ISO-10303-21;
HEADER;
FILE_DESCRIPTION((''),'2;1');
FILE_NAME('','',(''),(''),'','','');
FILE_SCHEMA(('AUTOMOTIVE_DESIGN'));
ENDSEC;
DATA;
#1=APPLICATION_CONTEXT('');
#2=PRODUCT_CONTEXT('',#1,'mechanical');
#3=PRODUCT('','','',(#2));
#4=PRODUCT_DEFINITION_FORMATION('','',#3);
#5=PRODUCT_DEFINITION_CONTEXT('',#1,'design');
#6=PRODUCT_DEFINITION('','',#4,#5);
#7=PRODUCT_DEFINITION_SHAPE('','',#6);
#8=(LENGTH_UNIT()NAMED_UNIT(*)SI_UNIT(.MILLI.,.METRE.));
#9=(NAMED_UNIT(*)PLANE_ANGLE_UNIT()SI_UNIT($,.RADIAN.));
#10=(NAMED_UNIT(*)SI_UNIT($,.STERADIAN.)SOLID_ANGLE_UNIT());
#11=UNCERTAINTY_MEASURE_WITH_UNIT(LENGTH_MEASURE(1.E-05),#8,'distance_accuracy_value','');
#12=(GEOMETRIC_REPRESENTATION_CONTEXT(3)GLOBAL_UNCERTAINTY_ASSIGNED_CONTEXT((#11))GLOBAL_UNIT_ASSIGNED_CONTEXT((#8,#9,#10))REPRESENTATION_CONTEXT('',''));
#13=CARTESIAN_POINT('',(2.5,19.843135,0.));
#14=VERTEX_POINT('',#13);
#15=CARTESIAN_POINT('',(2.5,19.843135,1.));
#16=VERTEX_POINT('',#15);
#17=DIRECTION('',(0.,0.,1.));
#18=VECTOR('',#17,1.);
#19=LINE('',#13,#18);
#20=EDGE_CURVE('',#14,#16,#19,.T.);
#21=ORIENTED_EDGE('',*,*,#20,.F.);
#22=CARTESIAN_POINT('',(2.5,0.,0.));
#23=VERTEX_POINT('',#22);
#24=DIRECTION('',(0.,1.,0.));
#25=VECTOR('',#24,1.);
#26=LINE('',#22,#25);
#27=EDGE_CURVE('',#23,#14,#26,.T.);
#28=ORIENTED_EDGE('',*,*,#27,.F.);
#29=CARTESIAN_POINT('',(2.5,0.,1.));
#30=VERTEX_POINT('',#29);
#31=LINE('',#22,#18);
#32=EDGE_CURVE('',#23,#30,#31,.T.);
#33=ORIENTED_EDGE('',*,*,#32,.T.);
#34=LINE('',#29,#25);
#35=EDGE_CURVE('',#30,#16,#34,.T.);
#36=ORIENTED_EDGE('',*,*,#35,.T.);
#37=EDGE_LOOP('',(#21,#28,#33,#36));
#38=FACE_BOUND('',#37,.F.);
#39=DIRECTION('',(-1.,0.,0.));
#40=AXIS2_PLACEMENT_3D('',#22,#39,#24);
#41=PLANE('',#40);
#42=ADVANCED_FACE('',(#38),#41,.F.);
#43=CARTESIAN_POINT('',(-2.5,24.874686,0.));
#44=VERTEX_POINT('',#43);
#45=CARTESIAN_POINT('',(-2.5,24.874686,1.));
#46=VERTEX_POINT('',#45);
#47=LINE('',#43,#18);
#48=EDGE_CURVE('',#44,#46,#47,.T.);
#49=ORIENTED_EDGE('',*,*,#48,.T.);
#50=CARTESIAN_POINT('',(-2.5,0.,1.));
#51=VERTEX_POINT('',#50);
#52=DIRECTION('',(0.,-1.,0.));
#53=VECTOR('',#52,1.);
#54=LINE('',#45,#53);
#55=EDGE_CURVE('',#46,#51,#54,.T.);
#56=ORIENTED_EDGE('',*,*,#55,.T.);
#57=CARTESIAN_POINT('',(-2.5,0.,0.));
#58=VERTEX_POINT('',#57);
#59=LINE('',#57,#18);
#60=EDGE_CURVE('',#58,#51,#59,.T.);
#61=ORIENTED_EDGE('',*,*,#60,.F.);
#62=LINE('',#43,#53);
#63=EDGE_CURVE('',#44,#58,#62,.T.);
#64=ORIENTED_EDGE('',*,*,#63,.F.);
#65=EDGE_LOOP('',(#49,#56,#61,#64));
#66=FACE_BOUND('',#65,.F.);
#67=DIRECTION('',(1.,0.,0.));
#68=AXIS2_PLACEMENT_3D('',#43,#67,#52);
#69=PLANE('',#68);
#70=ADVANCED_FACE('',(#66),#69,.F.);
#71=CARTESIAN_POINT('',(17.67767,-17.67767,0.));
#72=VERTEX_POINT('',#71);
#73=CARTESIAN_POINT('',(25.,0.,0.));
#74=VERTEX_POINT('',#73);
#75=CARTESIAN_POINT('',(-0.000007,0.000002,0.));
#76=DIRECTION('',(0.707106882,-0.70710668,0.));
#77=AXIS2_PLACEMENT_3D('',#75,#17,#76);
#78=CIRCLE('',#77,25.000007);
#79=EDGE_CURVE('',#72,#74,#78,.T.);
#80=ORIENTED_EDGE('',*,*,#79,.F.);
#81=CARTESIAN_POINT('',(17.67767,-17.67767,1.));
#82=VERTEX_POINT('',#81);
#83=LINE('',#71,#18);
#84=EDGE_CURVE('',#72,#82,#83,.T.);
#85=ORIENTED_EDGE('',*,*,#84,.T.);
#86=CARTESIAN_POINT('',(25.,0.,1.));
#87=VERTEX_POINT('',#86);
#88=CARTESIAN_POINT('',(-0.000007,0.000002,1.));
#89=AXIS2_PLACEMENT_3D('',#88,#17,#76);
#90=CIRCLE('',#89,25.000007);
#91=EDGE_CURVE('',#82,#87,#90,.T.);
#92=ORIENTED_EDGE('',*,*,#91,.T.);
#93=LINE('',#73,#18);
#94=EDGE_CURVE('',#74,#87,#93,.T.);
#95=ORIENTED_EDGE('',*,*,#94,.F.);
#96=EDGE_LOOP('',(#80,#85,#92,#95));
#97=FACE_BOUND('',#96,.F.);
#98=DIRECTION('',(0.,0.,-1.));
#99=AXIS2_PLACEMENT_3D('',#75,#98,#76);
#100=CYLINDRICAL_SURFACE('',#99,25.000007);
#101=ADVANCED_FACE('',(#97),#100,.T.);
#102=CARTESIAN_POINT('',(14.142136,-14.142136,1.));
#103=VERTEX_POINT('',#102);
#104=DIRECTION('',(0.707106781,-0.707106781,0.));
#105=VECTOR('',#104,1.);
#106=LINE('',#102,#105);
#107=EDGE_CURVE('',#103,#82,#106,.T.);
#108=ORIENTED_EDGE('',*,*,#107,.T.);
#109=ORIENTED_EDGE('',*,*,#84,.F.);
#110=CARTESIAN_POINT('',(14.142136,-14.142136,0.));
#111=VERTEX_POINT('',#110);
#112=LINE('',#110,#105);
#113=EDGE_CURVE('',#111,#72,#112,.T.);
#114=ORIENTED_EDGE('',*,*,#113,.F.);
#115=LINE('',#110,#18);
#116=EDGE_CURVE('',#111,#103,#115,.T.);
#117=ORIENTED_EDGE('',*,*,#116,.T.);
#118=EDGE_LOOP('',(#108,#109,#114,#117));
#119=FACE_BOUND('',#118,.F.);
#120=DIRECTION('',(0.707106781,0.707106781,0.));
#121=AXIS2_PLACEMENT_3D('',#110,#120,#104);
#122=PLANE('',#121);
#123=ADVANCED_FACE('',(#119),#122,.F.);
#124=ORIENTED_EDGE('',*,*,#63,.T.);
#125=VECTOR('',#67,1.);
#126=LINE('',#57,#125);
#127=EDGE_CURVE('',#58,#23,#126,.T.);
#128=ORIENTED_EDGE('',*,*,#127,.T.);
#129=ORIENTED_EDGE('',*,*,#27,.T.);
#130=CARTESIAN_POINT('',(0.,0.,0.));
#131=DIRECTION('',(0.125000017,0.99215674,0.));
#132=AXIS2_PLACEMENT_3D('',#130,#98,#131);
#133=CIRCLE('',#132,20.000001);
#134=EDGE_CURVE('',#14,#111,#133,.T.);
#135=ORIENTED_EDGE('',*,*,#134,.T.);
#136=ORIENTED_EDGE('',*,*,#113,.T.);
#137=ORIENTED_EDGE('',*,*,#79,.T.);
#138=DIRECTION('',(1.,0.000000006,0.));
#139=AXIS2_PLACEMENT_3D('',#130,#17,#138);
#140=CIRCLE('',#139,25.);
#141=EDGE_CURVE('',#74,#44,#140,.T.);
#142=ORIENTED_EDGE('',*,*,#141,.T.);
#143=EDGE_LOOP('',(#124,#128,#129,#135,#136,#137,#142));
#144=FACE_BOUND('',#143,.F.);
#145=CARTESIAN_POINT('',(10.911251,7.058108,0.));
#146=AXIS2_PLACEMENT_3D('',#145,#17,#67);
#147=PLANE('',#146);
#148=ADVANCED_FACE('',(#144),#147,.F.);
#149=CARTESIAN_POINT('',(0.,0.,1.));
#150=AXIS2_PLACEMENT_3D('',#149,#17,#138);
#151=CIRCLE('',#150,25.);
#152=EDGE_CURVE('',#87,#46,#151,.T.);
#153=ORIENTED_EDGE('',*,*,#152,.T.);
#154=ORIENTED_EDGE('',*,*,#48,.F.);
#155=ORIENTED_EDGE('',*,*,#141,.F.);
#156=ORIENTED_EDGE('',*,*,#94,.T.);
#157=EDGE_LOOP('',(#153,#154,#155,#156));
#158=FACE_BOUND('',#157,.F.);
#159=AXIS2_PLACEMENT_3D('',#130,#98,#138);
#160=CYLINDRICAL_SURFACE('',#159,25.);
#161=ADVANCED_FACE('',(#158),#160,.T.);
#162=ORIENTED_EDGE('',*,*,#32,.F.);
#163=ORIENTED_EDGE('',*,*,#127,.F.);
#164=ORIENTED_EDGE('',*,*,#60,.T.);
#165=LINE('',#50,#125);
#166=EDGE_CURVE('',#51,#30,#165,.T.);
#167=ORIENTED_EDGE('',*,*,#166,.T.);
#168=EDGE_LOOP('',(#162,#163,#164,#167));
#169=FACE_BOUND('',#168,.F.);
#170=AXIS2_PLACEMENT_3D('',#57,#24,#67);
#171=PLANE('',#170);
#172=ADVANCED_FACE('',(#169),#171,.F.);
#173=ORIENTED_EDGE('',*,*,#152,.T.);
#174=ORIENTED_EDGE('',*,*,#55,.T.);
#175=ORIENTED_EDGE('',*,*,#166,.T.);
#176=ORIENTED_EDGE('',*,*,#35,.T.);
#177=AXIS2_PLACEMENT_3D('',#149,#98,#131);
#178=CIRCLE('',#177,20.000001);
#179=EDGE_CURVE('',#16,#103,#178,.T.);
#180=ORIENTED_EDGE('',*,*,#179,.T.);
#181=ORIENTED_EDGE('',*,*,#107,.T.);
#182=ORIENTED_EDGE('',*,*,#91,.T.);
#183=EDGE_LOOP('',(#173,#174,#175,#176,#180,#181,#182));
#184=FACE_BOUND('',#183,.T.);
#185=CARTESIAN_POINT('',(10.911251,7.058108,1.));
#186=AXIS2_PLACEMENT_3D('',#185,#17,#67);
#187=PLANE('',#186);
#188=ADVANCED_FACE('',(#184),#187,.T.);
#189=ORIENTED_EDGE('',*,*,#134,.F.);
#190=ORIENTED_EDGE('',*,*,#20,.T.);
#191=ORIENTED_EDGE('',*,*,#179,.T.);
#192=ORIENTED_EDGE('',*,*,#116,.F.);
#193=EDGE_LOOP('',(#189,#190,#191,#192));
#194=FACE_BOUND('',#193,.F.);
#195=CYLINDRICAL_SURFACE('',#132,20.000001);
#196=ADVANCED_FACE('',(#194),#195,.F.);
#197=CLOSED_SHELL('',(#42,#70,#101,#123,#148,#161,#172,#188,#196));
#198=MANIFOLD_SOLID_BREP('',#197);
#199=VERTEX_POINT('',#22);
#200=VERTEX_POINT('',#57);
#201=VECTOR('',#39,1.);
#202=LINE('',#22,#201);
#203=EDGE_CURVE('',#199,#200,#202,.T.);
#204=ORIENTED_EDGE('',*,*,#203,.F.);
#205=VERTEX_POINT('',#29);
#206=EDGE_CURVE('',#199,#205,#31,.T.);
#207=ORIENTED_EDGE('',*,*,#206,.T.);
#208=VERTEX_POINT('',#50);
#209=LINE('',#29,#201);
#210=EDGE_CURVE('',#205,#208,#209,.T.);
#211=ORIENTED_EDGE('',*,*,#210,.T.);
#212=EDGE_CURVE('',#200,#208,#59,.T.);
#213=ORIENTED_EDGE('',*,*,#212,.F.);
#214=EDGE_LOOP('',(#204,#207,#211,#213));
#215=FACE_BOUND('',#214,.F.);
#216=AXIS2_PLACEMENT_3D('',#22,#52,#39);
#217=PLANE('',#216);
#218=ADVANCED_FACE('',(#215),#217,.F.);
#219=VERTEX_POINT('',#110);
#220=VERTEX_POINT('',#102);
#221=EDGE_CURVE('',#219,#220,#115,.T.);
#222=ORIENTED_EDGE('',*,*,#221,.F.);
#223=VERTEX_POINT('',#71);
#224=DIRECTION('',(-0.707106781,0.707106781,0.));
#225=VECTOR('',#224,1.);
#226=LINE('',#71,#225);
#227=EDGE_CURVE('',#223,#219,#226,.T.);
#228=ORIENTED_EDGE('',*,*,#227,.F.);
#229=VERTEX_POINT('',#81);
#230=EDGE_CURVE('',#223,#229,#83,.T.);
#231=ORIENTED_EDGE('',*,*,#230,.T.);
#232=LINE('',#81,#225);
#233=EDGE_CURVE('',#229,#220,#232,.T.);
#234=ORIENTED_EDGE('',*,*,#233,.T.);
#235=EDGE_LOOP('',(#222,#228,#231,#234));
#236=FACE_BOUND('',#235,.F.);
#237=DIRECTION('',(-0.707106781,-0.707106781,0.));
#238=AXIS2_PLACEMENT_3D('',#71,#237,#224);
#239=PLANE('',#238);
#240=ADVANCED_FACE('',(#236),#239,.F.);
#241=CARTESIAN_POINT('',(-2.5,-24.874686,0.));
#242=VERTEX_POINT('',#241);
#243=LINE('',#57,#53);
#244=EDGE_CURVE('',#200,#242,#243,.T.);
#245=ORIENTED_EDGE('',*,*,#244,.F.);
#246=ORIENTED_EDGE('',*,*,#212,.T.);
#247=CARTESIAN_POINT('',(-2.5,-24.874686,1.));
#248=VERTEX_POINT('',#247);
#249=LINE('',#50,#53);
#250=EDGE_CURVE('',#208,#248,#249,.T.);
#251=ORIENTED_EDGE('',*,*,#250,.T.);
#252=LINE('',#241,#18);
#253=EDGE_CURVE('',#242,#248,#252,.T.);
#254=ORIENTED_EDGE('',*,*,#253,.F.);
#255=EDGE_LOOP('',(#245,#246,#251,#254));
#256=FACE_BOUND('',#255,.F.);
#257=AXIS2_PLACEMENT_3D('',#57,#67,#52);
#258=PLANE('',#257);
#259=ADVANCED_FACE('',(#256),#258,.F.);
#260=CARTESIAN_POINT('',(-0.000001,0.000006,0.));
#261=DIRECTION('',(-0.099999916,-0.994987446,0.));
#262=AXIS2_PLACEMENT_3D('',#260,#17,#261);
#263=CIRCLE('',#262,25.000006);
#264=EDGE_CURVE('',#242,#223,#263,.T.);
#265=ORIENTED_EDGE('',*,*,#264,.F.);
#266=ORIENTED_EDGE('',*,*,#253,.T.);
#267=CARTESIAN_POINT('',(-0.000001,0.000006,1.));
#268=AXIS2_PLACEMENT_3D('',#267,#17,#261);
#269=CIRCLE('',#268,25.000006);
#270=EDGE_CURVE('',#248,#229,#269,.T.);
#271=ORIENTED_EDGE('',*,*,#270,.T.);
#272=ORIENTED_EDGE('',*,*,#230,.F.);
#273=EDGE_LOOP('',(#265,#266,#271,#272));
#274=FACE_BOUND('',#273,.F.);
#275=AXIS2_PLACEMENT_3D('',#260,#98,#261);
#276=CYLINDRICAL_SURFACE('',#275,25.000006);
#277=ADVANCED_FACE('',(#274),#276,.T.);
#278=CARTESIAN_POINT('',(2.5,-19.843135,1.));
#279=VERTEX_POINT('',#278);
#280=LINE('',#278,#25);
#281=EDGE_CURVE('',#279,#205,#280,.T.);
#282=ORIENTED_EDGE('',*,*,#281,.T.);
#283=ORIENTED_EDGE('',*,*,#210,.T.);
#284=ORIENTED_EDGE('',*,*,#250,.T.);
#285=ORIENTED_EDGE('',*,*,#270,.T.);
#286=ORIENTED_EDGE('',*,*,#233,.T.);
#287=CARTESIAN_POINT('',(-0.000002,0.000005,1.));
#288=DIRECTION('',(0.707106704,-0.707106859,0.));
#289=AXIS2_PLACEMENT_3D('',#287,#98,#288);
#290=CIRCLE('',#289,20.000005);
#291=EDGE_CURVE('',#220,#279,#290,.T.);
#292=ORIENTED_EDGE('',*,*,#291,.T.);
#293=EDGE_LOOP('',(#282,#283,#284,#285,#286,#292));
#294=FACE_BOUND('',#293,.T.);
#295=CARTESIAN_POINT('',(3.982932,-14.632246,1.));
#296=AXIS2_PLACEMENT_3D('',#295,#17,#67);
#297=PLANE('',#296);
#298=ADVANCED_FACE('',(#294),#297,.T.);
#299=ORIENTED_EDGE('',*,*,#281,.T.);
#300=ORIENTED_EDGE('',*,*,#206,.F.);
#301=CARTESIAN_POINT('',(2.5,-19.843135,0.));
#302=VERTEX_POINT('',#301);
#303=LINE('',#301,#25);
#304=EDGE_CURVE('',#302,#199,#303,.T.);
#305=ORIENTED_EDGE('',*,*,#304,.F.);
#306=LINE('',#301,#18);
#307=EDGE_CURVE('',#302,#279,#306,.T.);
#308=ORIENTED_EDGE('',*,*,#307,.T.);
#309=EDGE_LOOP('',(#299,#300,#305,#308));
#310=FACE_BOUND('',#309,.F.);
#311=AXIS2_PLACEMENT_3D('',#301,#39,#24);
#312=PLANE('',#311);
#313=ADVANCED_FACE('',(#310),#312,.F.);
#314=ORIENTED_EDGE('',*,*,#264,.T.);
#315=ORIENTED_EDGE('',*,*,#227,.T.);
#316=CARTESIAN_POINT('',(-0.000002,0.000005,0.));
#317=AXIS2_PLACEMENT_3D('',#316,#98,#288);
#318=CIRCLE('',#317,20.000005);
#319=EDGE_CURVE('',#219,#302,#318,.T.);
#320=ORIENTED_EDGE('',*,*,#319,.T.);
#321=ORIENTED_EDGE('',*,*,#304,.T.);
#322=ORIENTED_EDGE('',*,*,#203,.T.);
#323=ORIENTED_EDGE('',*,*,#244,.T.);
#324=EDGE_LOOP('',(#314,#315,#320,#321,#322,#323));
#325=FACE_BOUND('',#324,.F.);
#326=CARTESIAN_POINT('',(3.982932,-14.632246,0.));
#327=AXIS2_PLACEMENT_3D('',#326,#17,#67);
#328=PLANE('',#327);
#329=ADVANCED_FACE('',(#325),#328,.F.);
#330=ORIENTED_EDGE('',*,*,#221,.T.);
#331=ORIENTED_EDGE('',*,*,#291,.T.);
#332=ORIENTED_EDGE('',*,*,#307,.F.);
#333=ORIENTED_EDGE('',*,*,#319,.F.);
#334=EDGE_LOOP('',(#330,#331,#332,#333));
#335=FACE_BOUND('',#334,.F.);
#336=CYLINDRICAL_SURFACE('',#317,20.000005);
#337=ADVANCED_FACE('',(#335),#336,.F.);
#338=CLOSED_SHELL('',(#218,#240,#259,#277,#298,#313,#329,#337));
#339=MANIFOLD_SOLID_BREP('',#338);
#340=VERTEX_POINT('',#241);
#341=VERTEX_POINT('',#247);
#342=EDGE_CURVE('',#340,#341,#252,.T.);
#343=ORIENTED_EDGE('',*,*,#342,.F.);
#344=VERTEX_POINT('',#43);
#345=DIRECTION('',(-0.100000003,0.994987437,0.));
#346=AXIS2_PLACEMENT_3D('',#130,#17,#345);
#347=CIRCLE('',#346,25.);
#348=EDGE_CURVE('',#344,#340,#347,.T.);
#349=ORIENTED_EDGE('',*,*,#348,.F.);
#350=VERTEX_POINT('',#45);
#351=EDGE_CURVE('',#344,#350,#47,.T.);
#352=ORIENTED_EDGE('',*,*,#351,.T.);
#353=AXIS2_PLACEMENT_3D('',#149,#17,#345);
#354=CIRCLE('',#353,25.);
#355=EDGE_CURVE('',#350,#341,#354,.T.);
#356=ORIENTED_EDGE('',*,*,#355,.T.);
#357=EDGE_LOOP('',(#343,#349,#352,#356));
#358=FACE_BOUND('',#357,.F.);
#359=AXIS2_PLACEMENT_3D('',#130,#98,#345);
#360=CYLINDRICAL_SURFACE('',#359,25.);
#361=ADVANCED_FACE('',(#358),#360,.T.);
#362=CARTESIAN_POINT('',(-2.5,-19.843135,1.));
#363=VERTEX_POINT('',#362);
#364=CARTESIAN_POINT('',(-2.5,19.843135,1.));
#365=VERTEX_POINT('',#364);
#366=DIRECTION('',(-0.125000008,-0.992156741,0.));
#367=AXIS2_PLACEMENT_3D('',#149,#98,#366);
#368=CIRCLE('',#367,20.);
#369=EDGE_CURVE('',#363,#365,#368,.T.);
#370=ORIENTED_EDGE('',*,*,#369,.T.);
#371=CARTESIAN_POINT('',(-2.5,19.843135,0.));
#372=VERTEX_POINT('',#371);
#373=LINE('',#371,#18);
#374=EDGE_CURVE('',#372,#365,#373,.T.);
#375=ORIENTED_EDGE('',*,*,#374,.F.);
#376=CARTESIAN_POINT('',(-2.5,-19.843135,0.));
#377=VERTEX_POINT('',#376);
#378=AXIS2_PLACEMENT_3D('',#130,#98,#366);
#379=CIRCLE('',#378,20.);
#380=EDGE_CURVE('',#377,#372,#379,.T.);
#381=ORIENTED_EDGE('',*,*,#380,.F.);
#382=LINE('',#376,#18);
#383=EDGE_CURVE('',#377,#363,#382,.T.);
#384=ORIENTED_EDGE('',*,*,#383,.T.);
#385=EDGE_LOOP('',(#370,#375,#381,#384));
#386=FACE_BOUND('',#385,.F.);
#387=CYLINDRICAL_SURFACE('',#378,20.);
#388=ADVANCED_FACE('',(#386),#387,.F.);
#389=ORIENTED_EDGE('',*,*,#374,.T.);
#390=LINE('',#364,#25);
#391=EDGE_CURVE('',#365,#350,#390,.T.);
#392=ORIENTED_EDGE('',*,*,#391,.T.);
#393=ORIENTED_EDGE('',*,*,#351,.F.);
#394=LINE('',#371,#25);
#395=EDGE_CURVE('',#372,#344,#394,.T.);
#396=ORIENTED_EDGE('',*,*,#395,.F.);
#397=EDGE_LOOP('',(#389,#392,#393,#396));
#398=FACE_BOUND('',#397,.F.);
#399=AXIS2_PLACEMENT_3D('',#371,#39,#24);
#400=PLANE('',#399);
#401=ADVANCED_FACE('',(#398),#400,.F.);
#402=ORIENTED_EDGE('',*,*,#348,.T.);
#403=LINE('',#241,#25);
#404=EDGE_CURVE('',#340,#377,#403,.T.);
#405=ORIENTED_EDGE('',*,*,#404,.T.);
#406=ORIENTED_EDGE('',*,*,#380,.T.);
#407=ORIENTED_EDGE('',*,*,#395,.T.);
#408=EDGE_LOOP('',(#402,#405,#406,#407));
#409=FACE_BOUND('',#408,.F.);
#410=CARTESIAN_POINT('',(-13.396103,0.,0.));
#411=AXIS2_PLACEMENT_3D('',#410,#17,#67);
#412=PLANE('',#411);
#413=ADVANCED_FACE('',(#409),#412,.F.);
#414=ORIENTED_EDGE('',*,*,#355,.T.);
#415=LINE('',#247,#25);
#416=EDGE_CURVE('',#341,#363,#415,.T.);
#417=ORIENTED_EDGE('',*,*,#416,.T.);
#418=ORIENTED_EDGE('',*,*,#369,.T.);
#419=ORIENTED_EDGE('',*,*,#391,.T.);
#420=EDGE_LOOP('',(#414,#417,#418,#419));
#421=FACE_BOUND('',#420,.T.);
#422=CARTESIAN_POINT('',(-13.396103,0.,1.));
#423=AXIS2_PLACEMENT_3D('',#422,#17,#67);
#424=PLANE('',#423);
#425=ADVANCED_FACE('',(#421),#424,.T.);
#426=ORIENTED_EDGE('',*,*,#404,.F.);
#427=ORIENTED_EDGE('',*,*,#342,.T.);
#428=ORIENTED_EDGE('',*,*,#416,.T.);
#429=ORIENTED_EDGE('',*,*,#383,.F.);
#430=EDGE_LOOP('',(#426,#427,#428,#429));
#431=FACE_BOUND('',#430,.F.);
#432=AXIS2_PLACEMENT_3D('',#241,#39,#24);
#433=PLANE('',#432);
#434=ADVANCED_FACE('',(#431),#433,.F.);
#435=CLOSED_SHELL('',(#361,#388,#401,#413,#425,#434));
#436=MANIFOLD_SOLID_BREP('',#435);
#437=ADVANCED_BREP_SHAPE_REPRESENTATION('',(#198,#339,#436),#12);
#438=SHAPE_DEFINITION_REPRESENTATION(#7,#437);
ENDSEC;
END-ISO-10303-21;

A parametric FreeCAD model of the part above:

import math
import FreeCAD as App
import Part
import Sketcher

V = App.Vector
Q = App.Units.Quantity

doc = App.newDocument("Part")
body = doc.addObject("PartDesign::Body", "Body")

# Sketch on XY plane
sketch1 = body.newObject("Sketcher::SketchObject", "Sketch")
sketch1.AttachmentSupport = (doc.getObject("XY_Plane"), [""])
sketch1.MapMode = "FlatFace"
sketch1.addGeometry(Part.LineSegment(V(-2, 20, 0), V(-2, 25, 0)), False)
sketch1.addGeometry(Part.ArcOfCircle(Part.Circle(V(0, 0, 0), V(0, 0, 1), 25), math.radians(96), math.radians(264)), False)
sketch1.addGeometry(Part.LineSegment(V(-2, -25, 0), V(-2, -20, 0)), False)
sketch1.addGeometry(Part.ArcOfCircle(Part.Circle(V(0, 0, 0), V(0, 0, 1), 20), math.radians(97), math.radians(263)), False)
sketch1.addConstraint(Sketcher.Constraint("Coincident", 0, 2, 1, 1))
sketch1.addConstraint(Sketcher.Constraint("Coincident", 1, 2, 2, 1))
sketch1.addConstraint(Sketcher.Constraint("Coincident", 2, 2, 3, 2))
sketch1.addConstraint(Sketcher.Constraint("Coincident", 3, 1, 0, 1))
sketch1.addConstraint(Sketcher.Constraint("Vertical", 0))
sketch1.addConstraint(Sketcher.Constraint("Vertical", 2))
sketch1.addConstraint(Sketcher.Constraint("Coincident", 1, 3, -1, 1))
sketch1.addConstraint(Sketcher.Constraint("Coincident", 3, 3, -1, 1))
sketch1.addConstraint(Sketcher.Constraint("Vertical", 0, 2, 1, 2))
sketch1.addConstraint(Sketcher.Constraint("Radius", 1, 25.0))
sketch1.addConstraint(Sketcher.Constraint("Radius", 3, 20.0))
sketch1.addConstraint(Sketcher.Constraint("DistanceX", 0, 2, -1, 1, 2.5))
pad1 = body.newObject("PartDesign::Pad", "Pad")
pad1.Profile = sketch1
pad1.Length = 1
body2 = doc.addObject("PartDesign::Body", "Body001")

# Sketch on XY plane
sketch2 = body2.newObject("Sketcher::SketchObject", "Sketch001")
sketch2.AttachmentSupport = (doc.getObject("XY_Plane001"), [""])
sketch2.MapMode = "FlatFace"
sketch2.addGeometry(Part.ArcOfCircle(Part.Circle(V(0, 0, 0), V(0, 0, 1), 25), math.radians(-45), math.radians(0)), False)
sketch2.addGeometry(Part.ArcOfCircle(Part.Circle(V(0, 0, 0), V(0, 0, 1), 25), math.radians(0), math.radians(96)), False)
sketch2.addGeometry(Part.LineSegment(V(-2, 25, 0), V(-2, 0, 0)), False)
sketch2.addGeometry(Part.LineSegment(V(-2, 0, 0), V(2, 0, 0)), False)
sketch2.addGeometry(Part.LineSegment(V(2, 0, 0), V(2, 20, 0)), False)
sketch2.addGeometry(Part.ArcOfCircle(Part.Circle(V(0, 0, 0), V(0, 0, 1), 20), math.radians(-45), math.radians(83)), False)
sketch2.addGeometry(Part.LineSegment(V(14, -14, 0), V(18, -18, 0)), False)
sketch2.addConstraint(Sketcher.Constraint("Tangent", 0, 2, 1, 1))
sketch2.addConstraint(Sketcher.Constraint("Coincident", 1, 2, 2, 1))
sketch2.addConstraint(Sketcher.Constraint("Coincident", 2, 2, 3, 1))
sketch2.addConstraint(Sketcher.Constraint("Coincident", 3, 2, 4, 1))
sketch2.addConstraint(Sketcher.Constraint("Coincident", 4, 2, 5, 2))
sketch2.addConstraint(Sketcher.Constraint("Coincident", 5, 1, 6, 1))
sketch2.addConstraint(Sketcher.Constraint("Coincident", 6, 2, 0, 1))
sketch2.addConstraint(Sketcher.Constraint("Vertical", 2))
sketch2.addConstraint(Sketcher.Constraint("Horizontal", 3))
sketch2.addConstraint(Sketcher.Constraint("Vertical", 4))
sketch2.addConstraint(Sketcher.Constraint("Coincident", 0, 3, -1, 1))
sketch2.addConstraint(Sketcher.Constraint("Coincident", 5, 3, -1, 1))
sketch2.addConstraint(Sketcher.Constraint("Symmetric", 2, 2, 3, 2, -1, 1))
sketch2.addConstraint(Sketcher.Constraint("PointOnObject", 0, 2, -1))
sketch2.addConstraint(Sketcher.Constraint("Radius", 1, 25.0))
sketch2.addConstraint(Sketcher.Constraint("Radius", 5, 20.000001))
sketch2.addConstraint(Sketcher.Constraint("DistanceX", 3, 1, 3, 2, 5.0))
sketch2.addConstraint(Sketcher.Constraint("Angle", 6, Q("-45 deg")))
sketch2.addConstraint(Sketcher.Constraint("Distance", 6, 5.0))
sketch2.addConstraint(Sketcher.Constraint("DistanceX", -1, 1, 6, 2, 17.67767))
pad2 = body2.newObject("PartDesign::Pad", "Pad001")
pad2.Profile = sketch2
pad2.Length = 1
body3 = doc.addObject("PartDesign::Body", "Body002")

# Sketch on XY plane
sketch3 = body3.newObject("Sketcher::SketchObject", "Sketch002")
sketch3.AttachmentSupport = (doc.getObject("XY_Plane002"), [""])
sketch3.MapMode = "FlatFace"
sketch3.addGeometry(Part.ArcOfCircle(Part.Circle(V(0, 0, 0), V(0, 0, 1), 25), math.radians(-96), math.radians(-45)), False)
sketch3.addGeometry(Part.LineSegment(V(18, -18, 0), V(14, -14, 0)), False)
sketch3.addGeometry(Part.ArcOfCircle(Part.Circle(V(0, 0, 0), V(0, 0, 1), 20), math.radians(-83), math.radians(-45)), False)
sketch3.addGeometry(Part.LineSegment(V(2, -20, 0), V(2, 0, 0)), False)
sketch3.addGeometry(Part.LineSegment(V(2, 0, 0), V(-2, 0, 0)), False)
sketch3.addGeometry(Part.LineSegment(V(-2, 0, 0), V(-2, -25, 0)), False)
sketch3.addConstraint(Sketcher.Constraint("Coincident", 0, 2, 1, 1))
sketch3.addConstraint(Sketcher.Constraint("Coincident", 1, 2, 2, 2))
sketch3.addConstraint(Sketcher.Constraint("Coincident", 2, 1, 3, 1))
sketch3.addConstraint(Sketcher.Constraint("Coincident", 3, 2, 4, 1))
sketch3.addConstraint(Sketcher.Constraint("Coincident", 4, 2, 5, 1))
sketch3.addConstraint(Sketcher.Constraint("Coincident", 5, 2, 0, 1))
sketch3.addConstraint(Sketcher.Constraint("Vertical", 3))
sketch3.addConstraint(Sketcher.Constraint("Horizontal", 4))
sketch3.addConstraint(Sketcher.Constraint("Vertical", 5))
sketch3.addConstraint(Sketcher.Constraint("Coincident", 0, 3, -1, 1))
sketch3.addConstraint(Sketcher.Constraint("Coincident", 2, 3, -1, 1))
sketch3.addConstraint(Sketcher.Constraint("Symmetric", 3, 2, 4, 2, -1, 1))
sketch3.addConstraint(Sketcher.Constraint("DistanceX", 4, 2, 4, 1, 5.0))
sketch3.addConstraint(Sketcher.Constraint("Angle", 1, Q("135 deg")))
sketch3.addConstraint(Sketcher.Constraint("Distance", 1, 5.0))
sketch3.addConstraint(Sketcher.Constraint("Radius", 0, 25.000006))
sketch3.addConstraint(Sketcher.Constraint("DistanceY", 2, 1, 1, 2, 5.700999))
pad3 = body3.newObject("PartDesign::Pad", "Pad002")
pad3.Profile = sketch3
pad3.Length = 1

doc.recompute()
